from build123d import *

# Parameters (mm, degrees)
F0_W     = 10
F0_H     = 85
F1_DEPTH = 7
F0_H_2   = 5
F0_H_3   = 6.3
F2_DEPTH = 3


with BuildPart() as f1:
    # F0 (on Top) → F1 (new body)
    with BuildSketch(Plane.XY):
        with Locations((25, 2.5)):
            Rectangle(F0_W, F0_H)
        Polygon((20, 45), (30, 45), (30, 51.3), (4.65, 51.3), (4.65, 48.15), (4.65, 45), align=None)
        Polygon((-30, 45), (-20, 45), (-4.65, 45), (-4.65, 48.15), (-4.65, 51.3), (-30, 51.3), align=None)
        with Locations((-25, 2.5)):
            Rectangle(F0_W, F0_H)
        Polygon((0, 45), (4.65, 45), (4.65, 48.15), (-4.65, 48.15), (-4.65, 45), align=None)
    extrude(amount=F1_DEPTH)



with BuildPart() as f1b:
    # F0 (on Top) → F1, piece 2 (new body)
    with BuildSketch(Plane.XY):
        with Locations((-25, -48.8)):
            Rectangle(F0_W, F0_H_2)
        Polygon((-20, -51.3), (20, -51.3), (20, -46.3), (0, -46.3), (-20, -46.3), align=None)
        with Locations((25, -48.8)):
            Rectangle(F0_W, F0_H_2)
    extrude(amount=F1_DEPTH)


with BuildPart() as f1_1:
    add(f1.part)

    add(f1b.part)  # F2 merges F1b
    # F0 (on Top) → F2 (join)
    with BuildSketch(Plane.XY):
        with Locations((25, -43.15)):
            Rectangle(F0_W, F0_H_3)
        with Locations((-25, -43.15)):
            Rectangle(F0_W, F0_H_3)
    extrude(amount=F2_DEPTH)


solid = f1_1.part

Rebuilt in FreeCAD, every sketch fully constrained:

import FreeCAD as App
import Part
import Sketcher

V = App.Vector
Q = App.Units.Quantity

doc = App.newDocument("Part")
body = doc.addObject("PartDesign::Body", "Body")

# Sketch on XY plane
sketch1 = body.newObject("Sketcher::SketchObject", "Sketch")
sketch1.AttachmentSupport = (doc.getObject("XY_Plane"), [""])
sketch1.MapMode = "FlatFace"
sketch1.addGeometry([
    Part.LineSegment(V(20, 45, 0), V(20, -40, 0)),  # 0
    Part.LineSegment(V(20, -40, 0), V(30, -40, 0)),  # 1
    Part.LineSegment(V(30, -40, 0), V(30, 51.3, 0)),  # 2
    Part.LineSegment(V(30, 51.3, 0), V(4.7, 51.3, 0)),  # 3
    Part.LineSegment(V(4.7, 51.3, 0), V(4.7, 48.1, 0)),  # 4
    Part.LineSegment(V(4.7, 48.1, 0), V(-4.7, 48.1, 0)),  # 5
    Part.LineSegment(V(-4.7, 48.1, 0), V(-4.7, 51.3, 0)),  # 6
    Part.LineSegment(V(-4.7, 51.3, 0), V(-30, 51.3, 0)),  # 7
    Part.LineSegment(V(-30, 51.3, 0), V(-30, -40, 0)),  # 8
    Part.LineSegment(V(-30, -40, 0), V(-20, -40, 0)),  # 9
    Part.LineSegment(V(-20, -40, 0), V(-20, 45, 0)),  # 10
    Part.LineSegment(V(-20, 45, 0), V(20, 45, 0)),  # 11
], False)
sketch1.addConstraint([
    Sketcher.Constraint("Coincident", 0, 2, 1, 1),
    Sketcher.Constraint("Coincident", 1, 2, 2, 1),
    Sketcher.Constraint("Coincident", 2, 2, 3, 1),
    Sketcher.Constraint("Coincident", 3, 2, 4, 1),
    Sketcher.Constraint("Coincident", 4, 2, 5, 1),
    Sketcher.Constraint("Coincident", 5, 2, 6, 1),
    Sketcher.Constraint("Coincident", 6, 2, 7, 1),
    Sketcher.Constraint("Coincident", 7, 2, 8, 1),
    Sketcher.Constraint("Coincident", 8, 2, 9, 1),
    Sketcher.Constraint("Coincident", 9, 2, 10, 1),
    Sketcher.Constraint("Coincident", 10, 2, 11, 1),
    Sketcher.Constraint("Coincident", 11, 2, 0, 1),
    Sketcher.Constraint("Vertical", 0),
    Sketcher.Constraint("Horizontal", 1),
    Sketcher.Constraint("Vertical", 2),
    Sketcher.Constraint("Horizontal", 3),
    Sketcher.Constraint("Vertical", 4),
    Sketcher.Constraint("Horizontal", 5),
    Sketcher.Constraint("Vertical", 6),
    Sketcher.Constraint("Horizontal", 7),
    Sketcher.Constraint("Vertical", 8),
    Sketcher.Constraint("Horizontal", 9),
    Sketcher.Constraint("Vertical", 10),
    Sketcher.Constraint("Horizontal", 11),
    Sketcher.Constraint("Symmetric", 3, 2, 6, 2, -2),
    Sketcher.Constraint("Symmetric", 1, 2, 8, 2, -2),
    Sketcher.Constraint("Equal", 1, 9),
    Sketcher.Constraint("DistanceX", 1, 1, 1, 2, Q("10 mm")),
    Sketcher.Constraint("DistanceX", 11, 1, 11, 2, Q("40 mm")),
    Sketcher.Constraint("DistanceY", 0, 2, 0, 1, Q("85 mm")),
    Sketcher.Constraint("DistanceX", 5, 2, 5, 1, Q("9.3 mm")),
    Sketcher.Constraint("DistanceY", 2, 1, 2, 2, Q("91.3 mm")),
    Sketcher.Constraint("DistanceY", 0, 2, -1, 1, Q("40 mm")),
    Sketcher.Constraint("DistanceY", 4, 2, 4, 1, Q("3.15 mm")),
])
pad1 = body.newObject("PartDesign::Pad", "Pad")
pad1.Profile = sketch1
pad1.Length = 7
body2 = doc.addObject("PartDesign::Body", "Body001")

# Sketch on XY plane
sketch2 = body2.newObject("Sketcher::SketchObject", "Sketch001")
sketch2.AttachmentSupport = (doc.getObject("XY_Plane001"), [""])
sketch2.MapMode = "FlatFace"
sketch2.addGeometry([
    Part.LineSegment(V(-30, -46, 0), V(-30, -51, 0)),
    Part.LineSegment(V(-30, -51, 0), V(30, -51, 0)),
    Part.LineSegment(V(30, -51, 0), V(30, -46, 0)),
    Part.LineSegment(V(30, -46, 0), V(-30, -46, 0)),
], False)
sketch2.addConstraint([
    Sketcher.Constraint("Coincident", 0, 2, 1, 1),
    Sketcher.Constraint("Coincident", 1, 2, 2, 1),
    Sketcher.Constraint("Coincident", 2, 2, 3, 1),
    Sketcher.Constraint("Coincident", 3, 2, 0, 1),
    Sketcher.Constraint("Vertical", 0),
    Sketcher.Constraint("Horizontal", 1),
    Sketcher.Constraint("Vertical", 2),
    Sketcher.Constraint("Horizontal", 3),
    Sketcher.Constraint("DistanceX", 1, 1, 1, 2, Q("60 mm")),
    Sketcher.Constraint("DistanceY", 0, 2, 0, 1, Q("5 mm")),
    Sketcher.Constraint("DistanceX", 0, 2, -1, 1, Q("30 mm")),
    Sketcher.Constraint("DistanceY", 0, 2, -1, 1, Q("51.3 mm")),
])
pad2 = body2.newObject("PartDesign::Pad", "Pad001")
pad2.Profile = sketch2
pad2.Length = 7
body.AllowCompound = True
doc.recompute()

boolean = body.newObject("PartDesign::Boolean", "Boolean")
boolean.Type = "Fuse"
boolean.addObjects([body2])

# Sketch on XY plane
sketch3 = body.newObject("Sketcher::SketchObject", "Sketch002")
sketch3.AttachmentSupport = (doc.getObject("XY_Plane"), [""])
sketch3.MapMode = "FlatFace"
sketch3.addGeometry([
    Part.LineSegment(V(20, -40, 0), V(20, -46, 0)),  # 0
    Part.LineSegment(V(20, -46, 0), V(30, -46, 0)),  # 1
    Part.LineSegment(V(30, -46, 0), V(30, -40, 0)),  # 2
    Part.LineSegment(V(30, -40, 0), V(20, -40, 0)),  # 3
    Part.LineSegment(V(-30, -40, 0), V(-30, -46, 0)),  # 4
    Part.LineSegment(V(-30, -46, 0), V(-20, -46, 0)),  # 5
    Part.LineSegment(V(-20, -46, 0), V(-20, -40, 0)),  # 6
    Part.LineSegment(V(-20, -40, 0), V(-30, -40, 0)),  # 7
], False)
sketch3.addConstraint([
    Sketcher.Constraint("Coincident", 0, 2, 1, 1),
    Sketcher.Constraint("Coincident", 1, 2, 2, 1),
    Sketcher.Constraint("Coincident", 2, 2, 3, 1),
    Sketcher.Constraint("Coincident", 3, 2, 0, 1),
    Sketcher.Constraint("Coincident", 4, 2, 5, 1),
    Sketcher.Constraint("Coincident", 5, 2, 6, 1),
    Sketcher.Constraint("Coincident", 6, 2, 7, 1),
    Sketcher.Constraint("Coincident", 7, 2, 4, 1),
    Sketcher.Constraint("Vertical", 0),
    Sketcher.Constraint("Horizontal", 1),
    Sketcher.Constraint("Vertical", 2),
    Sketcher.Constraint("Horizontal", 3),
    Sketcher.Constraint("Vertical", 4),
    Sketcher.Constraint("Horizontal", 5),
    Sketcher.Constraint("Vertical", 6),
    Sketcher.Constraint("Horizontal", 7),
    Sketcher.Constraint("Symmetric", 1, 2, 4, 2, -2),
    Sketcher.Constraint("Symmetric", 3, 2, 6, 2, -2),
    Sketcher.Constraint("DistanceX", 1, 1, 1, 2, Q("10 mm")),
    Sketcher.Constraint("DistanceY", 0, 2, 0, 1, Q("6.3 mm")),
    Sketcher.Constraint("DistanceX", -1, 1, 0, 2, Q("20 mm")),
    Sketcher.Constraint("DistanceY", 2, 2, -1, 1, Q("40 mm")),
])
pad3 = body.newObject("PartDesign::Pad", "Pad002")
pad3.Profile = sketch3
pad3.Length = 3

doc.recompute()
